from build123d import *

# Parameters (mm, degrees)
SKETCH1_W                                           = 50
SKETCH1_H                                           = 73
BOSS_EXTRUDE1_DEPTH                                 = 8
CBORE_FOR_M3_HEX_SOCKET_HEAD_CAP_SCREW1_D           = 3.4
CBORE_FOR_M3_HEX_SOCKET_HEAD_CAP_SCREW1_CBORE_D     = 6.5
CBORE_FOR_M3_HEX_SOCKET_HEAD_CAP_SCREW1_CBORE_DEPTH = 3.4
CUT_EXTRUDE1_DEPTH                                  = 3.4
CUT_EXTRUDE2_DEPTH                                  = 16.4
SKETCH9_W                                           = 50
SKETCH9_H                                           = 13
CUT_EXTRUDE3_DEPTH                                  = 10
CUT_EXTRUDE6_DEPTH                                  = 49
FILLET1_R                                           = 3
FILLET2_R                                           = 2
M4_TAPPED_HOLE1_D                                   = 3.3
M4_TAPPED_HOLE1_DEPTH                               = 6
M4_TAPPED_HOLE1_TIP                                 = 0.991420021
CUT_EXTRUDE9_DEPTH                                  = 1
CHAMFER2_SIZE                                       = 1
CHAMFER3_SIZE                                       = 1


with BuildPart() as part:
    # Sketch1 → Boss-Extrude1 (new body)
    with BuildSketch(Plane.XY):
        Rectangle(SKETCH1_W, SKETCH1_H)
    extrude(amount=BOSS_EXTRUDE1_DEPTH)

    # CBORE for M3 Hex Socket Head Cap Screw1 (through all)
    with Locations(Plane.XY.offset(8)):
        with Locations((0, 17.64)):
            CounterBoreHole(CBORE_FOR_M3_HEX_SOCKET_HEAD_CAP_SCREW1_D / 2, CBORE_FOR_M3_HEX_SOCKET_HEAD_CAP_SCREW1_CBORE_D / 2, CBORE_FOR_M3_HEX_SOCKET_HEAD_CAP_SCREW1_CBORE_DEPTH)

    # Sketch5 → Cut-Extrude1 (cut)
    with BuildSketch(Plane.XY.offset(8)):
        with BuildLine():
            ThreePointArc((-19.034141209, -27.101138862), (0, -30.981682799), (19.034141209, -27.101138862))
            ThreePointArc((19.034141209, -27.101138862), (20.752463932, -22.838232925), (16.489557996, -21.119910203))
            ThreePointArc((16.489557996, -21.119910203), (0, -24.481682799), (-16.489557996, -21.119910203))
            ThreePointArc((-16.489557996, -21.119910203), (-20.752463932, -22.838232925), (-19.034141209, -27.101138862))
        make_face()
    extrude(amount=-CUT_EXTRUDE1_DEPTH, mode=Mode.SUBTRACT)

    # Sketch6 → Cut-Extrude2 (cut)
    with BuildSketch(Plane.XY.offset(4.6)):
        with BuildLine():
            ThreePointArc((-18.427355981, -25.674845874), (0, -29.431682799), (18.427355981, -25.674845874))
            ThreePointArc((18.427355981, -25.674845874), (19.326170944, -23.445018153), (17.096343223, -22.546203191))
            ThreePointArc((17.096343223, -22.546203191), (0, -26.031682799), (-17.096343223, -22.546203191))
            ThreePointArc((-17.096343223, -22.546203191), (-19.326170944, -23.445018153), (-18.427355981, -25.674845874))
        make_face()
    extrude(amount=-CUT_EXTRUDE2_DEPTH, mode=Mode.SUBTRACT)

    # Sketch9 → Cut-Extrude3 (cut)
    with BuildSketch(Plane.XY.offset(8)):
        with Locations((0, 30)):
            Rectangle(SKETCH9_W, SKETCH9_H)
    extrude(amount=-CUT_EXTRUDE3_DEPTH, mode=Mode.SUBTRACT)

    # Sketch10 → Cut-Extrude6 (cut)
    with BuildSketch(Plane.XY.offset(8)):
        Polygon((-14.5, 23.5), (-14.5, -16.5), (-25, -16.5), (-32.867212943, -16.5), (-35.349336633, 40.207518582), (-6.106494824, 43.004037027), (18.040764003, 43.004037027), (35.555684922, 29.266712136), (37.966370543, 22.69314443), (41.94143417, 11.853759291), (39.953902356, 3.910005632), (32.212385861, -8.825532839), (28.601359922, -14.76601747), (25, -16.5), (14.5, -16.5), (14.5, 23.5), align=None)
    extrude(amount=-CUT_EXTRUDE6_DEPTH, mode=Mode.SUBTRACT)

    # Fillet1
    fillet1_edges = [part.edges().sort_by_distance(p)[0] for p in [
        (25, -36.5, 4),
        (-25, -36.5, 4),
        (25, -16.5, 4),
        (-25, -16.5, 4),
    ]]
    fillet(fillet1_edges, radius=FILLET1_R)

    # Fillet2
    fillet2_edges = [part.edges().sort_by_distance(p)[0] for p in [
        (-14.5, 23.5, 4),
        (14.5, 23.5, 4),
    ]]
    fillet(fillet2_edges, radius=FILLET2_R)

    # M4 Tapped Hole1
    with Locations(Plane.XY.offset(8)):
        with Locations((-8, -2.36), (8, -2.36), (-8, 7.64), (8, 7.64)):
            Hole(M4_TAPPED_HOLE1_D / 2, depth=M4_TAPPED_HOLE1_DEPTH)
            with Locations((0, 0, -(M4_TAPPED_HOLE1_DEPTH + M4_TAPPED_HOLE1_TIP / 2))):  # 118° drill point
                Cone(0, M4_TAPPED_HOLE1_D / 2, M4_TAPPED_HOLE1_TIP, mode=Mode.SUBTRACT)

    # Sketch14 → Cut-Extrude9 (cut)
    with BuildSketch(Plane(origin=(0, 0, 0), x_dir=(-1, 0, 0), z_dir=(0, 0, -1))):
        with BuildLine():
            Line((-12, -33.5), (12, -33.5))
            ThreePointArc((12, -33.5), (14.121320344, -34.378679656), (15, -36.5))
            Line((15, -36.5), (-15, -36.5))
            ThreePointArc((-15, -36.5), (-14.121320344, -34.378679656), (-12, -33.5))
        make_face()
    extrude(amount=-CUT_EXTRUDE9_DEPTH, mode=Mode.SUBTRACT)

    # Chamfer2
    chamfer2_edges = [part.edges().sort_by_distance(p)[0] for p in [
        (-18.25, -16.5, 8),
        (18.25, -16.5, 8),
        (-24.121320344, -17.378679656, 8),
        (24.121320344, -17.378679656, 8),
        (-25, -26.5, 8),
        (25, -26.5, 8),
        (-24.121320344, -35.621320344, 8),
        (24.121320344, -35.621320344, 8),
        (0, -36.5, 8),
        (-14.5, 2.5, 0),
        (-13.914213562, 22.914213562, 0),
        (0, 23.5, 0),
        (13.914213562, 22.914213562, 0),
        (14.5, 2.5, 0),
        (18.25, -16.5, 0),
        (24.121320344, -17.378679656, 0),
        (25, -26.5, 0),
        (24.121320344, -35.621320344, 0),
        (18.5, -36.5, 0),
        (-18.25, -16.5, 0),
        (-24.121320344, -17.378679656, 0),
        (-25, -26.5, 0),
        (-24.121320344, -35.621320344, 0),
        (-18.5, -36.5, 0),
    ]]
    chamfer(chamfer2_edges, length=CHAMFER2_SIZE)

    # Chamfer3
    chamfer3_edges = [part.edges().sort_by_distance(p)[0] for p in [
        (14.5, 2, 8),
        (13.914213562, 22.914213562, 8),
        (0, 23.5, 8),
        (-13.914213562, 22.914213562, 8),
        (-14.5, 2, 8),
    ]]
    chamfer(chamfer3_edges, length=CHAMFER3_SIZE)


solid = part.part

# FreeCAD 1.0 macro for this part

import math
import FreeCAD as App
import Part
import Sketcher
from FreeCAD import Vector
Q = App.Units.Quantity


def edges_at(feature, points):
    """Names of the edges that pass closest to the given points."""
    edges = feature.Shape.Edges
    near = lambda p: min(range(len(edges)), key=lambda i: edges[i].distToShape(Part.Vertex(*p))[0])
    return sorted({f"Edge{near(p) + 1}" for p in points})


def add_polygon(sketch, points):
    """Adds a closed chain of lines whose ends are joined by coincident constraints."""
    first, n = sketch.GeometryCount, len(points)
    for a, b in zip(points, points[1:] + points[:1]):
        sketch.addGeometry(Part.LineSegment(App.Vector(*a, 0), App.Vector(*b, 0)), False)
    for i in range(n):
        sketch.addConstraint(Sketcher.Constraint("Coincident", first + i, 2, first + (i + 1) % n, 1))

doc = App.newDocument("Part")
body = doc.addObject("PartDesign::Body", "Body")

sketch1 = body.newObject("Sketcher::SketchObject", "Sketch")
sketch1.AttachmentSupport = (doc.getObject("XY_Plane"), [""])
sketch1.MapMode = "FlatFace"
add_polygon(sketch1, [(-25, 36), (-25, -36), (25, -36), (25, 36)])
sketch1.addConstraint([
    Sketcher.Constraint("Vertical", 0),
    Sketcher.Constraint("Horizontal", 1),
    Sketcher.Constraint("Vertical", 2),
    Sketcher.Constraint("Horizontal", 3),
    Sketcher.Constraint("Symmetric", 0, 2, 2, 2, -1, 1),
    Sketcher.Constraint("DistanceX", 1, 1, 1, 2, Q("50 mm")),
    Sketcher.Constraint("DistanceY", 0, 2, 0, 1, Q("73 mm")),
])
pad1 = body.newObject("PartDesign::Pad", "Pad")
pad1.Profile = sketch1
pad1.Length = 8

sketch2 = body.newObject("Sketcher::SketchObject", "Sketch001")
sketch2.AttachmentSupport = (doc.getObject("XY_Plane"), [""])
sketch2.MapMode = "FlatFace"
sketch2.AttachmentOffset = App.Placement(Vector(0, 0, 8), App.Rotation())
sketch2.addGeometry(Part.Circle(Vector(0, 17.6, 0), Vector(0, 0, 1), 1.7), False)
sketch2.addConstraint([
    Sketcher.Constraint("PointOnObject", 0, 3, -2),
    Sketcher.Constraint("Diameter", 0, Q("3.4 mm")),
    Sketcher.Constraint("DistanceY", -1, 1, 0, 3, Q("17.64 mm")),
])
doc.recompute()
hole = body.newObject("PartDesign::Hole", "Hole")
hole.Profile = sketch2
hole.ThreadType = "None"
hole.Diameter = 3.4
hole.DepthType = "ThroughAll"
hole.HoleCutType = "Counterbore"
hole.HoleCutDiameter = 6.5
hole.HoleCutDepth = 3.4

sketch3 = body.newObject("Sketcher::SketchObject", "Sketch002")
sketch3.AttachmentSupport = (doc.getObject("XY_Plane"), [""])
sketch3.MapMode = "FlatFace"
sketch3.AttachmentOffset = App.Placement(Vector(0, 0, 8), App.Rotation())
sketch3.addGeometry([
    Part.ArcOfCircle(Part.Circle(Vector(0, 17.6, 0), Vector(0, 0, 1), 48.6), math.radians(-113), math.radians(-67)),
    Part.ArcOfCircle(Part.Circle(Vector(17.8, -24.1, 0), Vector(0, 0, 1), 3.2), math.radians(-67), math.radians(113)),
    Part.ArcOfCircle(Part.Circle(Vector(0, 17.6, 0), Vector(0, 0, 1), 42.1), math.radians(-113), math.radians(-67)),
    Part.ArcOfCircle(Part.Circle(Vector(-17.8, -24.1, 0), Vector(0, 0, 1), 3.2), math.radians(67), math.radians(247)),
], False)
sketch3.addConstraint([
    Sketcher.Constraint("Tangent", 0, 2, 1, 1),
    Sketcher.Constraint("Tangent", 1, 2, 2, 2),
    Sketcher.Constraint("Tangent", 2, 1, 3, 1),
    Sketcher.Constraint("Tangent", 3, 2, 0, 1),
    Sketcher.Constraint("Coincident", 2, 3, 0, 3),
    Sketcher.Constraint("Symmetric", 1, 3, 3, 3, -2),
    Sketcher.Constraint("Radius", 1, Q("3.25 mm")),
    Sketcher.Constraint("DistanceY", -1, 1, 0, 3, Q("17.64 mm")),
    Sketcher.Constraint("Radius", 0, Q("48.621683 mm")),
    Sketcher.Constraint("DistanceX", 3, 3, 1, 3, Q("35.523699 mm")),
])
pocket1 = body.newObject("PartDesign::Pocket", "Pocket")
pocket1.Profile = sketch3
pocket1.Length = 3.4

sketch4 = body.newObject("Sketcher::SketchObject", "Sketch003")
sketch4.AttachmentSupport = (doc.getObject("XY_Plane"), [""])
sketch4.MapMode = "FlatFace"
sketch4.AttachmentOffset = App.Placement(Vector(0, 0, 4.6), App.Rotation())
sketch4.addGeometry([
    Part.ArcOfCircle(Part.Circle(Vector(0, 17.6, 0), Vector(0, 0, 1), 47.1), math.radians(-113), math.radians(-67)),
    Part.ArcOfCircle(Part.Circle(Vector(17.8, -24.1, 0), Vector(0, 0, 1), 1.7), math.radians(-67), math.radians(113)),
    Part.ArcOfCircle(Part.Circle(Vector(0, 17.6, 0), Vector(0, 0, 1), 43.7), math.radians(-113), math.radians(-67)),
    Part.ArcOfCircle(Part.Circle(Vector(-17.8, -24.1, 0), Vector(0, 0, 1), 1.7), math.radians(67), math.radians(247)),
], False)
sketch4.addConstraint([
    Sketcher.Constraint("Tangent", 0, 2, 1, 1),
    Sketcher.Constraint("Tangent", 1, 2, 2, 2),
    Sketcher.Constraint("Tangent", 2, 1, 3, 1),
    Sketcher.Constraint("Tangent", 3, 2, 0, 1),
    Sketcher.Constraint("Coincident", 2, 3, 0, 3),
    Sketcher.Constraint("Symmetric", 1, 3, 3, 3, -2),
    Sketcher.Constraint("Radius", 1, Q("1.7 mm")),
    Sketcher.Constraint("DistanceY", -1, 1, 0, 3, Q("17.64 mm")),
    Sketcher.Constraint("Radius", 0, Q("47.071683 mm")),
    Sketcher.Constraint("DistanceX", 3, 3, 1, 3, Q("35.523699 mm")),
])
pocket2 = body.newObject("PartDesign::Pocket", "Pocket001")
pocket2.Profile = sketch4
pocket2.Length = 16.4

sketch5 = body.newObject("Sketcher::SketchObject", "Sketch004")
sketch5.AttachmentSupport = (doc.getObject("XY_Plane"), [""])
sketch5.MapMode = "FlatFace"
sketch5.AttachmentOffset = App.Placement(Vector(0, 0, 8), App.Rotation())
add_polygon(sketch5, [(-25, 36), (-25, 24), (25, 24), (25, 36)])
sketch5.addConstraint([
    Sketcher.Constraint("Vertical", 0),
    Sketcher.Constraint("Horizontal", 1),
    Sketcher.Constraint("Vertical", 2),
    Sketcher.Constraint("Horizontal", 3),
    Sketcher.Constraint("DistanceX", 1, 1, 1, 2, Q("50 mm")),
    Sketcher.Constraint("DistanceY", 0, 2, 0, 1, Q("13 mm")),
    Sketcher.Constraint("DistanceX", 0, 2, -1, 1, Q("25 mm")),
    Sketcher.Constraint("DistanceY", -1, 1, 0, 2, Q("23.5 mm")),
])
pocket3 = body.newObject("PartDesign::Pocket", "Pocket002")
pocket3.Profile = sketch5
pocket3.Length = 10

sketch6 = body.newObject("Sketcher::SketchObject", "Sketch005")
sketch6.AttachmentSupport = (doc.getObject("XY_Plane"), [""])
sketch6.MapMode = "FlatFace"
sketch6.AttachmentOffset = App.Placement(Vector(0, 0, 8), App.Rotation())
add_polygon(sketch6, [(-14.5, -16.5), (-14.5, 23.5), (14.5, 23.5), (14.5, -16.5), (25, -16.5), (28.6, -14.8), (32.2, -8.8), (40, 3.9), (41.9, 11.9), (38, 22.7), (35.6, 29.3), (18, 43), (-6.1, 43), (-35.3, 40.2), (-32.9, -16.5)])
sketch6.addConstraint([
    Sketcher.Constraint("Vertical", 0),
    Sketcher.Constraint("Horizontal", 1),
    Sketcher.Constraint("Vertical", 2),
    Sketcher.Constraint("Horizontal", 3),
    Sketcher.Constraint("Horizontal", 11),
    Sketcher.Constraint("Horizontal", 14),
    Sketcher.Constraint("Symmetric", 2, 2, 14, 2, -2),
    Sketcher.Constraint("Parallel", 5, 6),
    Sketcher.Constraint("Parallel", 8, 9),
    Sketcher.Constraint("DistanceX", 1, 1, 1, 2, Q("29 mm")),
    Sketcher.Constraint("DistanceY", 0, 1, 0, 2, Q("40 mm")),
    Sketcher.Constraint("DistanceX", 3, 1, 3, 2, Q("10.5 mm")),
    Sketcher.Constraint("DistanceY", -1, 1, 0, 2, Q("23.5 mm")),
    Sketcher.Constraint("DistanceX", 11, 2, 11, 1, Q("24.147259 mm")),
    Sketcher.Constraint("DistanceX", 5, 2, 9, 2, Q("3.343299 mm")),
    Sketcher.Constraint("DistanceX", 12, 2, 10, 2, Q("53.390101 mm")),
    Sketcher.Constraint("Distance", 4, Q("3.99706 mm")),
    Sketcher.Constraint("Distance", 6, Q("14.903859 mm")),
    Sketcher.Constraint("Distance", 7, Q("8.18862 mm")),
    Sketcher.Constraint("DistanceX", 14, 1, 14, 2, Q("18.367213 mm")),
    Sketcher.Constraint("DistanceX", -1, 1, 4, 2, Q("28.60136 mm")),
    Sketcher.Constraint("DistanceY", -1, 1, 7, 2, Q("11.853759 mm")),
    Sketcher.Constraint("DistanceX", -1, 1, 8, 2, Q("37.966371 mm")),
    Sketcher.Constraint("DistanceY", -1, 1, 12, 2, Q("40.207519 mm")),
    Sketcher.Constraint("DistanceY", 5, 2, 6, 2, Q("12.735538 mm")),
    Sketcher.Constraint("DistanceX", 6, 2, 7, 2, Q("1.987532 mm")),
    Sketcher.Constraint("DistanceY", 6, 2, 8, 2, Q("18.783139 mm")),
    Sketcher.Constraint("DistanceX", 10, 2, 9, 2, Q("17.514921 mm")),
    Sketcher.Constraint("DistanceY", 12, 2, 11, 2, Q("2.796518 mm")),
])
pocket4 = body.newObject("PartDesign::Pocket", "Pocket003")
pocket4.Profile = sketch6
pocket4.Length = 49
doc.recompute()

fillet = body.newObject("PartDesign::Fillet", "Fillet")
fillet.Base = (pocket4, edges_at(pocket4, [
    (25, -36.5, 4),
    (-25, -36.5, 4),
    (25, -16.5, 4),
    (-25, -16.5, 4),
]))
fillet.Radius = 3
doc.recompute()

fillet2 = body.newObject("PartDesign::Fillet", "Fillet001")
fillet2.Base = (fillet, edges_at(fillet, [(-14.5, 23.5, 4), (14.5, 23.5, 4)]))
fillet2.Radius = 2

sketch7 = body.newObject("Sketcher::SketchObject", "Sketch006")
sketch7.AttachmentSupport = (doc.getObject("XY_Plane"), [""])
sketch7.MapMode = "FlatFace"
sketch7.AttachmentOffset = App.Placement(Vector(0, 0, 8), App.Rotation())
sketch7.addGeometry([
    Part.Circle(Vector(-8, -2.4, 0), Vector(0, 0, 1), 1.6),
    Part.Circle(Vector(8, -2.4, 0), Vector(0, 0, 1), 1.6),
    Part.Circle(Vector(-8, 7.6, 0), Vector(0, 0, 1), 1.6),
    Part.Circle(Vector(8, 7.6, 0), Vector(0, 0, 1), 1.6),
], False)
sketch7.addConstraint([
    Sketcher.Constraint("Equal", 0, 1),
    Sketcher.Constraint("Equal", 1, 2),
    Sketcher.Constraint("Equal", 2, 3),
    Sketcher.Constraint("Symmetric", 0, 3, 1, 3, -2),
    Sketcher.Constraint("Symmetric", 2, 3, 3, 3, -2),
    Sketcher.Constraint("Vertical", 0, 3, 2, 3),
    Sketcher.Constraint("Diameter", 0, Q("3.3 mm")),
    Sketcher.Constraint("DistanceX", 0, 3, -1, 1, Q("8 mm")),
    Sketcher.Constraint("DistanceY", 0, 3, 2, 3, Q("10 mm")),
    Sketcher.Constraint("DistanceY", 0, 3, -1, 1, Q("2.36 mm")),
])
doc.recompute()
hole2 = body.newObject("PartDesign::Hole", "Hole001")
hole2.Profile = sketch7
hole2.ThreadType = "None"
hole2.Diameter = 3.3
hole2.DepthType = "Dimension"
hole2.Depth = 6
hole2.DrillPoint = "Angled"
hole2.DrillPointAngle = 118

sketch8 = body.newObject("Sketcher::SketchObject", "Sketch007")
sketch8.AttachmentSupport = (doc.getObject("XY_Plane"), [""])
sketch8.MapMode = "FlatFace"
sketch8.addGeometry([
    Part.LineSegment(Vector(-12, -33.5, 0), Vector(12, -33.5, 0)),
    Part.ArcOfCircle(Part.Circle(Vector(12, -36.5, 0), Vector(0, 0, 1), 3), math.radians(0), math.radians(90)),
    Part.LineSegment(Vector(15, -36.5, 0), Vector(-15, -36.5, 0)),
    Part.ArcOfCircle(Part.Circle(Vector(-12, -36.5, 0), Vector(0, 0, 1), 3), math.radians(90), math.radians(180)),
], False)
sketch8.addConstraint([
    Sketcher.Constraint("Tangent", 0, 2, 1, 2),
    Sketcher.Constraint("Coincident", 1, 1, 2, 1),
    Sketcher.Constraint("Coincident", 2, 2, 3, 2),
    Sketcher.Constraint("Tangent", 3, 1, 0, 1),
    Sketcher.Constraint("Horizontal", 0),
    Sketcher.Constraint("Horizontal", 2),
    Sketcher.Constraint("Equal", 1, 3),
    Sketcher.Constraint("Horizontal", 3, 3, 1, 1),
    Sketcher.Constraint("Radius", 1, Q("3 mm")),
    Sketcher.Constraint("DistanceX", 0, 1, 0, 2, Q("24 mm")),
    Sketcher.Constraint("DistanceX", -1, 1, 1, 3, Q("12 mm")),
    Sketcher.Constraint("DistanceY", 1, 3, -1, 1, Q("36.5 mm")),
])
pocket5 = body.newObject("PartDesign::Pocket", "Pocket004")
pocket5.Profile = sketch8
pocket5.Length = 1
pocket5.Reversed = True
doc.recompute()

chamfer = body.newObject("PartDesign::Chamfer", "Chamfer")
chamfer.Base = (pocket5, edges_at(pocket5, [
    (-18.25, -16.5, 8),
    (18.25, -16.5, 8),
    (-24.121, -17.379, 8),
    (24.121, -17.379, 8),
    (-25, -26.5, 8),
    (25, -26.5, 8),
    (-24.121, -35.621, 8),
    (24.121, -35.621, 8),
    (0, -36.5, 8),
    (-14.5, 2.5, 0),
    (-13.914, 22.914, 0),
    (0, 23.5, 0),
    (13.914, 22.914, 0),
    (14.5, 2.5, 0),
    (18.25, -16.5, 0),
    (24.121, -17.379, 0),
    (25, -26.5, 0),
    (24.121, -35.621, 0),
    (18.5, -36.5, 0),
    (-18.25, -16.5, 0),
    (-24.121, -17.379, 0),
    (-25, -26.5, 0),
    (-24.121, -35.621, 0),
    (-18.5, -36.5, 0),
]))
chamfer.Size = 1
doc.recompute()

chamfer2 = body.newObject("PartDesign::Chamfer", "Chamfer001")
chamfer2.Base = (chamfer, edges_at(chamfer, [
    (14.5, 2, 8),
    (13.914, 22.914, 8),
    (0, 23.5, 8),
    (-13.914, 22.914, 8),
    (-14.5, 2, 8),
]))
chamfer2.Size = 1

doc.recompute()
